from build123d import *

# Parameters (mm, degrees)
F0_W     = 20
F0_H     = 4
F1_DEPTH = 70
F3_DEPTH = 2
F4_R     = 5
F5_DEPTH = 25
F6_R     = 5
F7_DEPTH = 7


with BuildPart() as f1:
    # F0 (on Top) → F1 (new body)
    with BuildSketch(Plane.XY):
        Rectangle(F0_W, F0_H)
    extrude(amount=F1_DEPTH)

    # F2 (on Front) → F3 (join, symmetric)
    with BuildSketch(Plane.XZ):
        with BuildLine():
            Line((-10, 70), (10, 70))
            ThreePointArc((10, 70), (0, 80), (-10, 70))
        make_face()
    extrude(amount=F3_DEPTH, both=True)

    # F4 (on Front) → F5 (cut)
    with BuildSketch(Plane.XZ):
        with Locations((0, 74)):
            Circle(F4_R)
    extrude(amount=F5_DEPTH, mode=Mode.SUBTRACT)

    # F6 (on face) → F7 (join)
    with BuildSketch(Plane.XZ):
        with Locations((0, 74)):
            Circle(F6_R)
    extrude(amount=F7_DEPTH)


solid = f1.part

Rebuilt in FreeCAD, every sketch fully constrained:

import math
import FreeCAD as App
import Part
import Sketcher
from FreeCAD import Vector
Q = App.Units.Quantity

doc = App.newDocument("Part")
body = doc.addObject("PartDesign::Body", "Body")

# Sketch on XY plane
sketch1 = body.newObject("Sketcher::SketchObject", "Sketch")
sketch1.AttachmentSupport = (doc.getObject("XY_Plane"), [""])
sketch1.MapMode = "FlatFace"
sketch1.addGeometry([
    Part.LineSegment(Vector(-10, 2, 0), Vector(-10, -2, 0)),
    Part.LineSegment(Vector(-10, -2, 0), Vector(10, -2, 0)),
    Part.LineSegment(Vector(10, -2, 0), Vector(10, 2, 0)),
    Part.LineSegment(Vector(10, 2, 0), Vector(-10, 2, 0)),
], False)
sketch1.addConstraint([
    Sketcher.Constraint("Coincident", 0, 2, 1, 1),
    Sketcher.Constraint("Coincident", 1, 2, 2, 1),
    Sketcher.Constraint("Coincident", 2, 2, 3, 1),
    Sketcher.Constraint("Coincident", 3, 2, 0, 1),
    Sketcher.Constraint("Vertical", 0),
    Sketcher.Constraint("Horizontal", 1),
    Sketcher.Constraint("Vertical", 2),
    Sketcher.Constraint("Horizontal", 3),
    Sketcher.Constraint("Symmetric", 0, 2, 2, 2, -1, 1),
    Sketcher.Constraint("DistanceX", 1, 1, 1, 2, Q("20 mm")),
    Sketcher.Constraint("DistanceY", 0, 2, 0, 1, Q("4 mm")),
])
pad1 = body.newObject("PartDesign::Pad", "Pad")
pad1.Profile = sketch1
pad1.Length = 70

# Sketch on XZ plane
sketch2 = body.newObject("Sketcher::SketchObject", "Sketch001")
sketch2.AttachmentSupport = (doc.getObject("XZ_Plane"), [""])
sketch2.MapMode = "FlatFace"
sketch2.addGeometry([
    Part.LineSegment(Vector(-10, 70, 0), Vector(10, 70, 0)),
    Part.ArcOfCircle(Part.Circle(Vector(0, 70, 0), Vector(0, 0, 1), 10), math.radians(0), math.radians(180)),
], False)
sketch2.addConstraint([
    Sketcher.Constraint("Coincident", 0, 1, 1, 2),
    Sketcher.Constraint("Coincident", 1, 1, 0, 2),
    Sketcher.Constraint("Horizontal", 0),
    Sketcher.Constraint("PointOnObject", 1, 3, -2),
    Sketcher.Constraint("Horizontal", 1, 3, 0, 1),
    Sketcher.Constraint("Radius", 1, Q("10 mm")),
    Sketcher.Constraint("DistanceY", -1, 1, 1, 3, Q("70 mm")),
])
pad2 = body.newObject("PartDesign::Pad", "Pad001")
pad2.Profile = sketch2
pad2.Length = 4
pad2.Midplane = True

# Sketch on XZ plane
sketch3 = body.newObject("Sketcher::SketchObject", "Sketch002")
sketch3.AttachmentSupport = (doc.getObject("XZ_Plane"), [""])
sketch3.MapMode = "FlatFace"
sketch3.addGeometry(Part.Circle(Vector(0, 74, 0), Vector(0, 0, 1), 5), False)
sketch3.addConstraint([
    Sketcher.Constraint("PointOnObject", 0, 3, -2),
    Sketcher.Constraint("Diameter", 0, Q("10 mm")),
    Sketcher.Constraint("DistanceY", -1, 1, 0, 3, Q("74 mm")),
])
pocket1 = body.newObject("PartDesign::Pocket", "Pocket")
pocket1.Profile = sketch3
pocket1.Length = 25
pocket1.Reversed = True

# Sketch on XZ plane
sketch4 = body.newObject("Sketcher::SketchObject", "Sketch003")
sketch4.AttachmentSupport = (doc.getObject("XZ_Plane"), [""])
sketch4.MapMode = "FlatFace"
sketch4.addGeometry(Part.Circle(Vector(0, 74, 0), Vector(0, 0, 1), 5), False)
sketch4.addConstraint([
    Sketcher.Constraint("PointOnObject", 0, 3, -2),
    Sketcher.Constraint("Diameter", 0, Q("10 mm")),
    Sketcher.Constraint("DistanceY", -1, 1, 0, 3, Q("74 mm")),
])
pad3 = body.newObject("PartDesign::Pad", "Pad002")
pad3.Profile = sketch4
pad3.Length = 7

doc.recompute()
